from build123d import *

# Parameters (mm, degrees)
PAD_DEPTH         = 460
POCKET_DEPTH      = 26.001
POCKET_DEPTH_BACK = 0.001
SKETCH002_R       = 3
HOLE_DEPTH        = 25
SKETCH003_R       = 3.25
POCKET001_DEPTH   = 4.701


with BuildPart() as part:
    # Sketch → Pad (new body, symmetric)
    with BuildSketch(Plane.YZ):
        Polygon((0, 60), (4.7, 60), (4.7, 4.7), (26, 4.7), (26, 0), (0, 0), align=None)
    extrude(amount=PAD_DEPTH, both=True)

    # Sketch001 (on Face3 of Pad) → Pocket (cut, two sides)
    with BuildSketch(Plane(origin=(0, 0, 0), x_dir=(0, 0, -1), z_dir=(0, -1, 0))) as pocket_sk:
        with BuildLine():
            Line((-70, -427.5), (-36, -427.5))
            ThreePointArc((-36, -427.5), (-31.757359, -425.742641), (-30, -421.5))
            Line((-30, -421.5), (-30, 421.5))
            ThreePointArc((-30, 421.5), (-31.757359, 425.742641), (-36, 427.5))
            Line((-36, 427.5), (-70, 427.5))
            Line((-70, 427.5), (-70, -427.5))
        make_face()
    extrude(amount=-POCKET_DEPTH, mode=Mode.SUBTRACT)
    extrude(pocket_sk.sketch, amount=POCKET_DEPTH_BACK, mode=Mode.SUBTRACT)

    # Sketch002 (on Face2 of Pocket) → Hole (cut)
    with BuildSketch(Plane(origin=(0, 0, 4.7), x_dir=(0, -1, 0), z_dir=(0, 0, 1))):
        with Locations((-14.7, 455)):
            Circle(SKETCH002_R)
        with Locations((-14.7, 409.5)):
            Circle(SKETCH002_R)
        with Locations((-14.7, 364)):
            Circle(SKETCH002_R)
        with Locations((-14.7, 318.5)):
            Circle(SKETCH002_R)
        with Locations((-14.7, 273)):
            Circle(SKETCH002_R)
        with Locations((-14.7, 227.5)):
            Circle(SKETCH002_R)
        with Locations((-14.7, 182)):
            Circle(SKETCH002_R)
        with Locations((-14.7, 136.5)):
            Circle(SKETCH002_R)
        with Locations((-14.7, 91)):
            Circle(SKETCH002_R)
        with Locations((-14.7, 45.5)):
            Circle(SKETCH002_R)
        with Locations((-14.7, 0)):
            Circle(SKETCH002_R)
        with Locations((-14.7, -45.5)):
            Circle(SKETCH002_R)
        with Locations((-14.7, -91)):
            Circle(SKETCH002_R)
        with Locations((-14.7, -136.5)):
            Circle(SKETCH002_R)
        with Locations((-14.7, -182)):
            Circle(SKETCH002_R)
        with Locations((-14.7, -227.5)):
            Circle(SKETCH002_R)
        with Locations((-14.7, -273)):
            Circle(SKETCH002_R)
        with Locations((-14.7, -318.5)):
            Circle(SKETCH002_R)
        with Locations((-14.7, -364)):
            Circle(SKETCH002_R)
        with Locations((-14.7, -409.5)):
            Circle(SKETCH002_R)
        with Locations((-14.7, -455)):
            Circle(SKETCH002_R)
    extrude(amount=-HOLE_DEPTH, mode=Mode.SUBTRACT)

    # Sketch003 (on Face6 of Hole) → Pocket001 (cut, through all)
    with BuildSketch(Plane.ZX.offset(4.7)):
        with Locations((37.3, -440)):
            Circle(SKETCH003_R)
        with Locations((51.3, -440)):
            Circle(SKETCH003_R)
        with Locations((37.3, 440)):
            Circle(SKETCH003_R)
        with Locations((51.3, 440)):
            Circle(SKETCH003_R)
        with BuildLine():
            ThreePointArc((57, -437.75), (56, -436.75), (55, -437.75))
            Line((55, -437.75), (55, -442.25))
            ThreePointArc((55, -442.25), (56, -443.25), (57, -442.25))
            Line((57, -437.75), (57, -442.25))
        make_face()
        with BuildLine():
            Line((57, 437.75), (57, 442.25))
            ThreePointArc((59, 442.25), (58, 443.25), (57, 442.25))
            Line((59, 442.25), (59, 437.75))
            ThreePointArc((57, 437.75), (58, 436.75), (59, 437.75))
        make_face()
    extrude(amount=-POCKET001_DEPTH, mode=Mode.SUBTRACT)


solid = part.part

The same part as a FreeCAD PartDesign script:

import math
import FreeCAD as App
import Part
import Sketcher


def add_polygon(sketch, points):
    """Adds a closed chain of lines whose ends are joined by coincident constraints."""
    first, n = sketch.GeometryCount, len(points)
    for a, b in zip(points, points[1:] + points[:1]):
        sketch.addGeometry(Part.LineSegment(App.Vector(*a, 0), App.Vector(*b, 0)), False)
    for i in range(n):
        sketch.addConstraint(Sketcher.Constraint("Coincident", first + i, 2, first + (i + 1) % n, 1))

doc = App.newDocument("Part")
body = doc.addObject("PartDesign::Body", "Body")

sketch1 = doc.addObject("Sketcher::SketchObject", "Sketch")
body.addObject(sketch1)
sketch1.AttachmentSupport = (doc.YZ_Plane, [""])
sketch1.MapMode = "FlatFace"
add_polygon(sketch1, [(4.7, 60), (0, 60), (0, 0), (26, 0), (26, 4.7), (4.7, 4.7)])
sketch1.addConstraint(Sketcher.Constraint("Horizontal", 0))
sketch1.addConstraint(Sketcher.Constraint("Vertical", 1))
sketch1.addConstraint(Sketcher.Constraint("Horizontal", 2))
sketch1.addConstraint(Sketcher.Constraint("Vertical", 3))
sketch1.addConstraint(Sketcher.Constraint("Horizontal", 4))
sketch1.addConstraint(Sketcher.Constraint("Vertical", 5))
sketch1.addConstraint(Sketcher.Constraint("Coincident", 1, 2, -1, 1))
sketch1.addConstraint(Sketcher.Constraint("Equal", 0, 3))
sketch1.addConstraint(Sketcher.Constraint("DistanceX", 2, 1, 2, 2, 26.0))
sketch1.addConstraint(Sketcher.Constraint("DistanceY", 1, 2, 1, 1, 60.0))
sketch1.addConstraint(Sketcher.Constraint("DistanceX", 0, 2, 0, 1, 4.7))
pad1 = doc.addObject("PartDesign::Pad", "Pad")
body.addObject(pad1)
pad1.Profile = sketch1
pad1.Length = 920
pad1.Midplane = True

sketch2 = doc.addObject("Sketcher::SketchObject", "Sketch001")
body.addObject(sketch2)
sketch2.AttachmentSupport = (doc.XZ_Plane, [""])
sketch2.MapMode = "FlatFace"
sketch2.addGeometry(Part.LineSegment(App.Vector(-428, 70, 0), App.Vector(-428, 36, 0)), False)
sketch2.addGeometry(Part.ArcOfCircle(Part.Circle(App.Vector(-422, 36, 0), App.Vector(0, 0, 1), 6), math.radians(180), math.radians(270)), False)
sketch2.addGeometry(Part.LineSegment(App.Vector(-422, 30, 0), App.Vector(422, 30, 0)), False)
sketch2.addGeometry(Part.ArcOfCircle(Part.Circle(App.Vector(422, 36, 0), App.Vector(0, 0, 1), 6), math.radians(-90), math.radians(0)), False)
sketch2.addGeometry(Part.LineSegment(App.Vector(428, 36, 0), App.Vector(428, 70, 0)), False)
sketch2.addGeometry(Part.LineSegment(App.Vector(428, 70, 0), App.Vector(-428, 70, 0)), False)
sketch2.addConstraint(Sketcher.Constraint("Tangent", 0, 2, 1, 1))
sketch2.addConstraint(Sketcher.Constraint("Tangent", 1, 2, 2, 1))
sketch2.addConstraint(Sketcher.Constraint("Tangent", 2, 2, 3, 1))
sketch2.addConstraint(Sketcher.Constraint("Tangent", 3, 2, 4, 1))
sketch2.addConstraint(Sketcher.Constraint("Coincident", 4, 2, 5, 1))
sketch2.addConstraint(Sketcher.Constraint("Coincident", 5, 2, 0, 1))
sketch2.addConstraint(Sketcher.Constraint("Vertical", 0))
sketch2.addConstraint(Sketcher.Constraint("Horizontal", 2))
sketch2.addConstraint(Sketcher.Constraint("Vertical", 4))
sketch2.addConstraint(Sketcher.Constraint("Horizontal", 5))
sketch2.addConstraint(Sketcher.Constraint("Equal", 1, 3))
sketch2.addConstraint(Sketcher.Constraint("Radius", 1, 5.999999))
sketch2.addConstraint(Sketcher.Constraint("DistanceX", 2, 1, 2, 2, 843.0))
sketch2.addConstraint(Sketcher.Constraint("DistanceY", 0, 2, 0, 1, 34.0))
sketch2.addConstraint(Sketcher.Constraint("DistanceY", -1, 1, 1, 3, 35.999999))
sketch2.addConstraint(Sketcher.Constraint("DistanceX", 1, 3, -1, 1, 421.500001))
pocket1 = doc.addObject("PartDesign::Pocket", "Pocket")
body.addObject(pocket1)
pocket1.Profile = sketch2
pocket1.Type = "ThroughAll"
pocket1.Midplane = True

sketch3 = doc.addObject("Sketcher::SketchObject", "Sketch002")
body.addObject(sketch3)
sketch3.AttachmentSupport = (doc.XY_Plane, [""])
sketch3.MapMode = "FlatFace"
sketch3.AttachmentOffset = App.Placement(App.Vector(0, 0, 4.7), App.Rotation())
sketch3.addGeometry(Part.Circle(App.Vector(455, 14.7, 0), App.Vector(0, 0, 1), 3), False)
sketch3.addGeometry(Part.Circle(App.Vector(409.5, 14.7, 0), App.Vector(0, 0, 1), 3), False)
sketch3.addGeometry(Part.Circle(App.Vector(364, 14.7, 0), App.Vector(0, 0, 1), 3), False)
sketch3.addGeometry(Part.Circle(App.Vector(318.5, 14.7, 0), App.Vector(0, 0, 1), 3), False)
sketch3.addGeometry(Part.Circle(App.Vector(273, 14.7, 0), App.Vector(0, 0, 1), 3), False)
sketch3.addGeometry(Part.Circle(App.Vector(227.5, 14.7, 0), App.Vector(0, 0, 1), 3), False)
sketch3.addGeometry(Part.Circle(App.Vector(182, 14.7, 0), App.Vector(0, 0, 1), 3), False)
sketch3.addGeometry(Part.Circle(App.Vector(136.5, 14.7, 0), App.Vector(0, 0, 1), 3), False)
sketch3.addGeometry(Part.Circle(App.Vector(91, 14.7, 0), App.Vector(0, 0, 1), 3), False)
sketch3.addGeometry(Part.Circle(App.Vector(45.5, 14.7, 0), App.Vector(0, 0, 1), 3), False)
sketch3.addGeometry(Part.Circle(App.Vector(0, 14.7, 0), App.Vector(0, 0, 1), 3), False)
sketch3.addGeometry(Part.Circle(App.Vector(-45.5, 14.7, 0), App.Vector(0, 0, 1), 3), False)
sketch3.addGeometry(Part.Circle(App.Vector(-91, 14.7, 0), App.Vector(0, 0, 1), 3), False)
sketch3.addGeometry(Part.Circle(App.Vector(-136.5, 14.7, 0), App.Vector(0, 0, 1), 3), False)
sketch3.addGeometry(Part.Circle(App.Vector(-182, 14.7, 0), App.Vector(0, 0, 1), 3), False)
sketch3.addGeometry(Part.Circle(App.Vector(-227.5, 14.7, 0), App.Vector(0, 0, 1), 3), False)
sketch3.addGeometry(Part.Circle(App.Vector(-273, 14.7, 0), App.Vector(0, 0, 1), 3), False)
sketch3.addGeometry(Part.Circle(App.Vector(-318.5, 14.7, 0), App.Vector(0, 0, 1), 3), False)
sketch3.addGeometry(Part.Circle(App.Vector(-364, 14.7, 0), App.Vector(0, 0, 1), 3), False)
sketch3.addGeometry(Part.Circle(App.Vector(-409.5, 14.7, 0), App.Vector(0, 0, 1), 3), False)
sketch3.addGeometry(Part.Circle(App.Vector(-455, 14.7, 0), App.Vector(0, 0, 1), 3), False)
sketch3.addConstraint(Sketcher.Constraint("Equal", 0, 1))
sketch3.addConstraint(Sketcher.Constraint("Equal", 1, 2))
sketch3.addConstraint(Sketcher.Constraint("Equal", 2, 3))
sketch3.addConstraint(Sketcher.Constraint("Equal", 3, 4))
sketch3.addConstraint(Sketcher.Constraint("Equal", 4, 5))
sketch3.addConstraint(Sketcher.Constraint("Equal", 5, 6))
sketch3.addConstraint(Sketcher.Constraint("Equal", 6, 7))
sketch3.addConstraint(Sketcher.Constraint("Equal", 7, 8))
sketch3.addConstraint(Sketcher.Constraint("Equal", 8, 9))
sketch3.addConstraint(Sketcher.Constraint("Equal", 9, 10))
sketch3.addConstraint(Sketcher.Constraint("Equal", 10, 11))
sketch3.addConstraint(Sketcher.Constraint("Equal", 11, 12))
sketch3.addConstraint(Sketcher.Constraint("Equal", 12, 13))
sketch3.addConstraint(Sketcher.Constraint("Equal", 13, 14))
sketch3.addConstraint(Sketcher.Constraint("Equal", 14, 15))
sketch3.addConstraint(Sketcher.Constraint("Equal", 15, 16))
sketch3.addConstraint(Sketcher.Constraint("Equal", 16, 17))
sketch3.addConstraint(Sketcher.Constraint("Equal", 17, 18))
sketch3.addConstraint(Sketcher.Constraint("Equal", 18, 19))
sketch3.addConstraint(Sketcher.Constraint("Equal", 19, 20))
sketch3.addConstraint(Sketcher.Constraint("Symmetric", 9, 3, 11, 3, -2))
sketch3.addConstraint(Sketcher.Constraint("Symmetric", 8, 3, 12, 3, -2))
sketch3.addConstraint(Sketcher.Constraint("Symmetric", 7, 3, 13, 3, -2))
sketch3.addConstraint(Sketcher.Constraint("Symmetric", 6, 3, 14, 3, -2))
sketch3.addConstraint(Sketcher.Constraint("Symmetric", 5, 3, 15, 3, -2))
sketch3.addConstraint(Sketcher.Constraint("Symmetric", 4, 3, 16, 3, -2))
sketch3.addConstraint(Sketcher.Constraint("Symmetric", 3, 3, 17, 3, -2))
sketch3.addConstraint(Sketcher.Constraint("Symmetric", 2, 3, 18, 3, -2))
sketch3.addConstraint(Sketcher.Constraint("Symmetric", 1, 3, 19, 3, -2))
sketch3.addConstraint(Sketcher.Constraint("Symmetric", 0, 3, 20, 3, -2))
sketch3.addConstraint(Sketcher.Constraint("PointOnObject", 10, 3, -2))
sketch3.addConstraint(Sketcher.Constraint("Horizontal", 0, 3, 1, 3))
sketch3.addConstraint(Sketcher.Constraint("Horizontal", 1, 3, 2, 3))
sketch3.addConstraint(Sketcher.Constraint("Horizontal", 2, 3, 3, 3))
sketch3.addConstraint(Sketcher.Constraint("Horizontal", 3, 3, 4, 3))
sketch3.addConstraint(Sketcher.Constraint("Horizontal", 4, 3, 5, 3))
sketch3.addConstraint(Sketcher.Constraint("Horizontal", 5, 3, 6, 3))
sketch3.addConstraint(Sketcher.Constraint("Horizontal", 6, 3, 7, 3))
sketch3.addConstraint(Sketcher.Constraint("Horizontal", 7, 3, 8, 3))
sketch3.addConstraint(Sketcher.Constraint("Horizontal", 8, 3, 9, 3))
sketch3.addConstraint(Sketcher.Constraint("Horizontal", 9, 3, 10, 3))
sketch3.addConstraint(Sketcher.Constraint("Diameter", 0, 6.0))
sketch3.addConstraint(Sketcher.Constraint("DistanceX", -1, 1, 0, 3, 455.0))
sketch3.addConstraint(Sketcher.Constraint("DistanceX", -1, 1, 2, 3, 364.0))
sketch3.addConstraint(Sketcher.Constraint("DistanceX", -1, 1, 4, 3, 273.0))
sketch3.addConstraint(Sketcher.Constraint("DistanceX", -1, 1, 6, 3, 182.0))
sketch3.addConstraint(Sketcher.Constraint("DistanceX", -1, 1, 8, 3, 91.0))
sketch3.addConstraint(Sketcher.Constraint("DistanceX", 3, 3, 1, 3, 91.0))
sketch3.addConstraint(Sketcher.Constraint("DistanceX", 5, 3, 3, 3, 91.0))
sketch3.addConstraint(Sketcher.Constraint("DistanceX", 7, 3, 5, 3, 91.0))
sketch3.addConstraint(Sketcher.Constraint("DistanceX", 9, 3, 7, 3, 91.0))
sketch3.addConstraint(Sketcher.Constraint("DistanceX", 11, 3, 9, 3, 91.0))
sketch3.addConstraint(Sketcher.Constraint("DistanceY", -1, 1, 0, 3, 14.7))
pocket2 = doc.addObject("PartDesign::Pocket", "Pocket001")
body.addObject(pocket2)
pocket2.Profile = sketch3
pocket2.Length = 25

sketch4 = doc.addObject("Sketcher::SketchObject", "Sketch003")
body.addObject(sketch4)
sketch4.AttachmentSupport = (doc.XZ_Plane, [""])
sketch4.MapMode = "FlatFace"
sketch4.AttachmentOffset = App.Placement(App.Vector(0, 0, -4.7), App.Rotation())
sketch4.addGeometry(Part.Circle(App.Vector(-440, 37.3, 0), App.Vector(0, 0, 1), 3.2), False)
sketch4.addGeometry(Part.Circle(App.Vector(-440, 51.3, 0), App.Vector(0, 0, 1), 3.2), False)
sketch4.addGeometry(Part.Circle(App.Vector(440, 37.3, 0), App.Vector(0, 0, 1), 3.2), False)
sketch4.addGeometry(Part.Circle(App.Vector(440, 51.3, 0), App.Vector(0, 0, 1), 3.2), False)
sketch4.addGeometry(Part.ArcOfCircle(Part.Circle(App.Vector(-437.8, 56, 0), App.Vector(0, 0, 1), 1), math.radians(-90), math.radians(90)), False)
sketch4.addGeometry(Part.LineSegment(App.Vector(-437.8, 55, 0), App.Vector(-442.2, 55, 0)), False)
sketch4.addGeometry(Part.ArcOfCircle(Part.Circle(App.Vector(-442.2, 56, 0), App.Vector(0, 0, 1), 1), math.radians(90), math.radians(270)), False)
sketch4.addGeometry(Part.LineSegment(App.Vector(-442.2, 57, 0), App.Vector(-437.8, 57, 0)), False)
sketch4.addGeometry(Part.LineSegment(App.Vector(442.2, 57, 0), App.Vector(437.8, 57, 0)), False)
sketch4.addGeometry(Part.ArcOfCircle(Part.Circle(App.Vector(437.8, 58, 0), App.Vector(0, 0, 1), 1), math.radians(90), math.radians(270)), False)
sketch4.addGeometry(Part.LineSegment(App.Vector(437.8, 59, 0), App.Vector(442.2, 59, 0)), False)
sketch4.addGeometry(Part.ArcOfCircle(Part.Circle(App.Vector(442.2, 58, 0), App.Vector(0, 0, 1), 1), math.radians(-90), math.radians(90)), False)
sketch4.addConstraint(Sketcher.Constraint("Tangent", 4, 1, 5, 1))
sketch4.addConstraint(Sketcher.Constraint("Tangent", 5, 2, 6, 2))
sketch4.addConstraint(Sketcher.Constraint("Tangent", 6, 1, 7, 1))
sketch4.addConstraint(Sketcher.Constraint("Tangent", 7, 2, 4, 2))
sketch4.addConstraint(Sketcher.Constraint("Tangent", 8, 2, 9, 2))
sketch4.addConstraint(Sketcher.Constraint("Tangent", 9, 1, 10, 1))
sketch4.addConstraint(Sketcher.Constraint("Tangent", 10, 2, 11, 2))
sketch4.addConstraint(Sketcher.Constraint("Tangent", 11, 1, 8, 1))
sketch4.addConstraint(Sketcher.Constraint("Horizontal", 5))
sketch4.addConstraint(Sketcher.Constraint("Horizontal", 7))
sketch4.addConstraint(Sketcher.Constraint("Horizontal", 8))
sketch4.addConstraint(Sketcher.Constraint("Horizontal", 10))
sketch4.addConstraint(Sketcher.Constraint("Equal", 0, 1))
sketch4.addConstraint(Sketcher.Constraint("Equal", 1, 2))
sketch4.addConstraint(Sketcher.Constraint("Equal", 2, 3))
sketch4.addConstraint(Sketcher.Constraint("Equal", 6, 9))
sketch4.addConstraint(Sketcher.Constraint("Symmetric", 0, 3, 2, 3, -2))
sketch4.addConstraint(Sketcher.Constraint("Symmetric", 1, 3, 3, 3, -2))
sketch4.addConstraint(Sketcher.Constraint("Symmetric", 7, 2, 8, 2, -2))
sketch4.addConstraint(Sketcher.Constraint("Vertical", 0, 3, 1, 3))
sketch4.addConstraint(Sketcher.Constraint("Equal", 7, 8))
sketch4.addConstraint(Sketcher.Constraint("Radius", 4, 1.0))
sketch4.addConstraint(Sketcher.Constraint("Diameter", 0, 6.5))
sketch4.addConstraint(Sketcher.Constraint("DistanceX", 5, 2, 5, 1, 4.5))
sketch4.addConstraint(Sketcher.Constraint("DistanceX", 0, 3, -1, 1, 440.0))
sketch4.addConstraint(Sketcher.Constraint("DistanceY", -1, 1, 4, 3, 56.0))
sketch4.addConstraint(Sketcher.Constraint("DistanceY", 0, 3, 1, 3, 14.0))
sketch4.addConstraint(Sketcher.Constraint("DistanceX", 4, 3, 11, 3, 880.0))
sketch4.addConstraint(Sketcher.Constraint("DistanceY", -1, 1, 0, 3, 37.3))
pocket3 = doc.addObject("PartDesign::Pocket", "Pocket002")
body.addObject(pocket3)
pocket3.Profile = sketch4
pocket3.Type = "ThroughAll"
pocket3.Reversed = True

doc.recompute()
